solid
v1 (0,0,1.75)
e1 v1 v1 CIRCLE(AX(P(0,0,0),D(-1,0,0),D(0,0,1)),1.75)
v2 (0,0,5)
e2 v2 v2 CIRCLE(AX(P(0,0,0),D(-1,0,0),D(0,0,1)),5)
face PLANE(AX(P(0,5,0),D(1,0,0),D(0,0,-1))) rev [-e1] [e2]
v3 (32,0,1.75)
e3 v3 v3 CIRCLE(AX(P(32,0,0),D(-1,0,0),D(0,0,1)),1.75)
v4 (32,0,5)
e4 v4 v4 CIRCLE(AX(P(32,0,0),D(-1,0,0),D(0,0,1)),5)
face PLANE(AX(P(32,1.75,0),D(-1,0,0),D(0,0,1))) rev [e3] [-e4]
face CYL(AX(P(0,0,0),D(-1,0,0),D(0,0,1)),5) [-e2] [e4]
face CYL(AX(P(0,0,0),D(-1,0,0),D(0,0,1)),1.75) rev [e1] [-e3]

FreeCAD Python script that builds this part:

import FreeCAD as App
import Part
import Sketcher
from FreeCAD import Vector
Q = App.Units.Quantity

doc = App.newDocument("Part")
body = doc.addObject("PartDesign::Body", "Body")

# Sketch on XY plane
sketch1 = doc.addObject("Sketcher::SketchObject", "Sketch")
body.addObject(sketch1)
sketch1.AttachmentSupport = (doc.XY_Plane, [""])
sketch1.MapMode = "FlatFace"
sketch1.addGeometry([
    Part.LineSegment(Vector(0, 5, 0), Vector(0, 1.75, 0)),
    Part.LineSegment(Vector(0, 1.75, 0), Vector(32, 1.75, 0)),
    Part.LineSegment(Vector(32, 1.75, 0), Vector(32, 5, 0)),
    Part.LineSegment(Vector(32, 5, 0), Vector(0, 5, 0)),
], False)
sketch1.addConstraint([
    Sketcher.Constraint("Coincident", 0, 2, 1, 1),
    Sketcher.Constraint("Coincident", 1, 2, 2, 1),
    Sketcher.Constraint("Coincident", 2, 2, 3, 1),
    Sketcher.Constraint("Coincident", 3, 2, 0, 1),
    Sketcher.Constraint("Vertical", 0),
    Sketcher.Constraint("Horizontal", 1),
    Sketcher.Constraint("Vertical", 2),
    Sketcher.Constraint("Horizontal", 3),
    Sketcher.Constraint("PointOnObject", 0, 2, -2),
    Sketcher.Constraint("DistanceX", 1, 1, 1, 2, Q("32 mm")),
    Sketcher.Constraint("DistanceY", -1, 1, 2, 2, Q("5 mm")),
    Sketcher.Constraint("DistanceY", 0, 2, 0, 1, Q("3.25 mm")),
])
revolution = doc.addObject("PartDesign::Revolution", "Revolution")
body.addObject(revolution)
revolution.Profile = sketch1
revolution.ReferenceAxis = (sketch1, ["H_Axis"])
revolution.Angle = 360

doc.recompute()
